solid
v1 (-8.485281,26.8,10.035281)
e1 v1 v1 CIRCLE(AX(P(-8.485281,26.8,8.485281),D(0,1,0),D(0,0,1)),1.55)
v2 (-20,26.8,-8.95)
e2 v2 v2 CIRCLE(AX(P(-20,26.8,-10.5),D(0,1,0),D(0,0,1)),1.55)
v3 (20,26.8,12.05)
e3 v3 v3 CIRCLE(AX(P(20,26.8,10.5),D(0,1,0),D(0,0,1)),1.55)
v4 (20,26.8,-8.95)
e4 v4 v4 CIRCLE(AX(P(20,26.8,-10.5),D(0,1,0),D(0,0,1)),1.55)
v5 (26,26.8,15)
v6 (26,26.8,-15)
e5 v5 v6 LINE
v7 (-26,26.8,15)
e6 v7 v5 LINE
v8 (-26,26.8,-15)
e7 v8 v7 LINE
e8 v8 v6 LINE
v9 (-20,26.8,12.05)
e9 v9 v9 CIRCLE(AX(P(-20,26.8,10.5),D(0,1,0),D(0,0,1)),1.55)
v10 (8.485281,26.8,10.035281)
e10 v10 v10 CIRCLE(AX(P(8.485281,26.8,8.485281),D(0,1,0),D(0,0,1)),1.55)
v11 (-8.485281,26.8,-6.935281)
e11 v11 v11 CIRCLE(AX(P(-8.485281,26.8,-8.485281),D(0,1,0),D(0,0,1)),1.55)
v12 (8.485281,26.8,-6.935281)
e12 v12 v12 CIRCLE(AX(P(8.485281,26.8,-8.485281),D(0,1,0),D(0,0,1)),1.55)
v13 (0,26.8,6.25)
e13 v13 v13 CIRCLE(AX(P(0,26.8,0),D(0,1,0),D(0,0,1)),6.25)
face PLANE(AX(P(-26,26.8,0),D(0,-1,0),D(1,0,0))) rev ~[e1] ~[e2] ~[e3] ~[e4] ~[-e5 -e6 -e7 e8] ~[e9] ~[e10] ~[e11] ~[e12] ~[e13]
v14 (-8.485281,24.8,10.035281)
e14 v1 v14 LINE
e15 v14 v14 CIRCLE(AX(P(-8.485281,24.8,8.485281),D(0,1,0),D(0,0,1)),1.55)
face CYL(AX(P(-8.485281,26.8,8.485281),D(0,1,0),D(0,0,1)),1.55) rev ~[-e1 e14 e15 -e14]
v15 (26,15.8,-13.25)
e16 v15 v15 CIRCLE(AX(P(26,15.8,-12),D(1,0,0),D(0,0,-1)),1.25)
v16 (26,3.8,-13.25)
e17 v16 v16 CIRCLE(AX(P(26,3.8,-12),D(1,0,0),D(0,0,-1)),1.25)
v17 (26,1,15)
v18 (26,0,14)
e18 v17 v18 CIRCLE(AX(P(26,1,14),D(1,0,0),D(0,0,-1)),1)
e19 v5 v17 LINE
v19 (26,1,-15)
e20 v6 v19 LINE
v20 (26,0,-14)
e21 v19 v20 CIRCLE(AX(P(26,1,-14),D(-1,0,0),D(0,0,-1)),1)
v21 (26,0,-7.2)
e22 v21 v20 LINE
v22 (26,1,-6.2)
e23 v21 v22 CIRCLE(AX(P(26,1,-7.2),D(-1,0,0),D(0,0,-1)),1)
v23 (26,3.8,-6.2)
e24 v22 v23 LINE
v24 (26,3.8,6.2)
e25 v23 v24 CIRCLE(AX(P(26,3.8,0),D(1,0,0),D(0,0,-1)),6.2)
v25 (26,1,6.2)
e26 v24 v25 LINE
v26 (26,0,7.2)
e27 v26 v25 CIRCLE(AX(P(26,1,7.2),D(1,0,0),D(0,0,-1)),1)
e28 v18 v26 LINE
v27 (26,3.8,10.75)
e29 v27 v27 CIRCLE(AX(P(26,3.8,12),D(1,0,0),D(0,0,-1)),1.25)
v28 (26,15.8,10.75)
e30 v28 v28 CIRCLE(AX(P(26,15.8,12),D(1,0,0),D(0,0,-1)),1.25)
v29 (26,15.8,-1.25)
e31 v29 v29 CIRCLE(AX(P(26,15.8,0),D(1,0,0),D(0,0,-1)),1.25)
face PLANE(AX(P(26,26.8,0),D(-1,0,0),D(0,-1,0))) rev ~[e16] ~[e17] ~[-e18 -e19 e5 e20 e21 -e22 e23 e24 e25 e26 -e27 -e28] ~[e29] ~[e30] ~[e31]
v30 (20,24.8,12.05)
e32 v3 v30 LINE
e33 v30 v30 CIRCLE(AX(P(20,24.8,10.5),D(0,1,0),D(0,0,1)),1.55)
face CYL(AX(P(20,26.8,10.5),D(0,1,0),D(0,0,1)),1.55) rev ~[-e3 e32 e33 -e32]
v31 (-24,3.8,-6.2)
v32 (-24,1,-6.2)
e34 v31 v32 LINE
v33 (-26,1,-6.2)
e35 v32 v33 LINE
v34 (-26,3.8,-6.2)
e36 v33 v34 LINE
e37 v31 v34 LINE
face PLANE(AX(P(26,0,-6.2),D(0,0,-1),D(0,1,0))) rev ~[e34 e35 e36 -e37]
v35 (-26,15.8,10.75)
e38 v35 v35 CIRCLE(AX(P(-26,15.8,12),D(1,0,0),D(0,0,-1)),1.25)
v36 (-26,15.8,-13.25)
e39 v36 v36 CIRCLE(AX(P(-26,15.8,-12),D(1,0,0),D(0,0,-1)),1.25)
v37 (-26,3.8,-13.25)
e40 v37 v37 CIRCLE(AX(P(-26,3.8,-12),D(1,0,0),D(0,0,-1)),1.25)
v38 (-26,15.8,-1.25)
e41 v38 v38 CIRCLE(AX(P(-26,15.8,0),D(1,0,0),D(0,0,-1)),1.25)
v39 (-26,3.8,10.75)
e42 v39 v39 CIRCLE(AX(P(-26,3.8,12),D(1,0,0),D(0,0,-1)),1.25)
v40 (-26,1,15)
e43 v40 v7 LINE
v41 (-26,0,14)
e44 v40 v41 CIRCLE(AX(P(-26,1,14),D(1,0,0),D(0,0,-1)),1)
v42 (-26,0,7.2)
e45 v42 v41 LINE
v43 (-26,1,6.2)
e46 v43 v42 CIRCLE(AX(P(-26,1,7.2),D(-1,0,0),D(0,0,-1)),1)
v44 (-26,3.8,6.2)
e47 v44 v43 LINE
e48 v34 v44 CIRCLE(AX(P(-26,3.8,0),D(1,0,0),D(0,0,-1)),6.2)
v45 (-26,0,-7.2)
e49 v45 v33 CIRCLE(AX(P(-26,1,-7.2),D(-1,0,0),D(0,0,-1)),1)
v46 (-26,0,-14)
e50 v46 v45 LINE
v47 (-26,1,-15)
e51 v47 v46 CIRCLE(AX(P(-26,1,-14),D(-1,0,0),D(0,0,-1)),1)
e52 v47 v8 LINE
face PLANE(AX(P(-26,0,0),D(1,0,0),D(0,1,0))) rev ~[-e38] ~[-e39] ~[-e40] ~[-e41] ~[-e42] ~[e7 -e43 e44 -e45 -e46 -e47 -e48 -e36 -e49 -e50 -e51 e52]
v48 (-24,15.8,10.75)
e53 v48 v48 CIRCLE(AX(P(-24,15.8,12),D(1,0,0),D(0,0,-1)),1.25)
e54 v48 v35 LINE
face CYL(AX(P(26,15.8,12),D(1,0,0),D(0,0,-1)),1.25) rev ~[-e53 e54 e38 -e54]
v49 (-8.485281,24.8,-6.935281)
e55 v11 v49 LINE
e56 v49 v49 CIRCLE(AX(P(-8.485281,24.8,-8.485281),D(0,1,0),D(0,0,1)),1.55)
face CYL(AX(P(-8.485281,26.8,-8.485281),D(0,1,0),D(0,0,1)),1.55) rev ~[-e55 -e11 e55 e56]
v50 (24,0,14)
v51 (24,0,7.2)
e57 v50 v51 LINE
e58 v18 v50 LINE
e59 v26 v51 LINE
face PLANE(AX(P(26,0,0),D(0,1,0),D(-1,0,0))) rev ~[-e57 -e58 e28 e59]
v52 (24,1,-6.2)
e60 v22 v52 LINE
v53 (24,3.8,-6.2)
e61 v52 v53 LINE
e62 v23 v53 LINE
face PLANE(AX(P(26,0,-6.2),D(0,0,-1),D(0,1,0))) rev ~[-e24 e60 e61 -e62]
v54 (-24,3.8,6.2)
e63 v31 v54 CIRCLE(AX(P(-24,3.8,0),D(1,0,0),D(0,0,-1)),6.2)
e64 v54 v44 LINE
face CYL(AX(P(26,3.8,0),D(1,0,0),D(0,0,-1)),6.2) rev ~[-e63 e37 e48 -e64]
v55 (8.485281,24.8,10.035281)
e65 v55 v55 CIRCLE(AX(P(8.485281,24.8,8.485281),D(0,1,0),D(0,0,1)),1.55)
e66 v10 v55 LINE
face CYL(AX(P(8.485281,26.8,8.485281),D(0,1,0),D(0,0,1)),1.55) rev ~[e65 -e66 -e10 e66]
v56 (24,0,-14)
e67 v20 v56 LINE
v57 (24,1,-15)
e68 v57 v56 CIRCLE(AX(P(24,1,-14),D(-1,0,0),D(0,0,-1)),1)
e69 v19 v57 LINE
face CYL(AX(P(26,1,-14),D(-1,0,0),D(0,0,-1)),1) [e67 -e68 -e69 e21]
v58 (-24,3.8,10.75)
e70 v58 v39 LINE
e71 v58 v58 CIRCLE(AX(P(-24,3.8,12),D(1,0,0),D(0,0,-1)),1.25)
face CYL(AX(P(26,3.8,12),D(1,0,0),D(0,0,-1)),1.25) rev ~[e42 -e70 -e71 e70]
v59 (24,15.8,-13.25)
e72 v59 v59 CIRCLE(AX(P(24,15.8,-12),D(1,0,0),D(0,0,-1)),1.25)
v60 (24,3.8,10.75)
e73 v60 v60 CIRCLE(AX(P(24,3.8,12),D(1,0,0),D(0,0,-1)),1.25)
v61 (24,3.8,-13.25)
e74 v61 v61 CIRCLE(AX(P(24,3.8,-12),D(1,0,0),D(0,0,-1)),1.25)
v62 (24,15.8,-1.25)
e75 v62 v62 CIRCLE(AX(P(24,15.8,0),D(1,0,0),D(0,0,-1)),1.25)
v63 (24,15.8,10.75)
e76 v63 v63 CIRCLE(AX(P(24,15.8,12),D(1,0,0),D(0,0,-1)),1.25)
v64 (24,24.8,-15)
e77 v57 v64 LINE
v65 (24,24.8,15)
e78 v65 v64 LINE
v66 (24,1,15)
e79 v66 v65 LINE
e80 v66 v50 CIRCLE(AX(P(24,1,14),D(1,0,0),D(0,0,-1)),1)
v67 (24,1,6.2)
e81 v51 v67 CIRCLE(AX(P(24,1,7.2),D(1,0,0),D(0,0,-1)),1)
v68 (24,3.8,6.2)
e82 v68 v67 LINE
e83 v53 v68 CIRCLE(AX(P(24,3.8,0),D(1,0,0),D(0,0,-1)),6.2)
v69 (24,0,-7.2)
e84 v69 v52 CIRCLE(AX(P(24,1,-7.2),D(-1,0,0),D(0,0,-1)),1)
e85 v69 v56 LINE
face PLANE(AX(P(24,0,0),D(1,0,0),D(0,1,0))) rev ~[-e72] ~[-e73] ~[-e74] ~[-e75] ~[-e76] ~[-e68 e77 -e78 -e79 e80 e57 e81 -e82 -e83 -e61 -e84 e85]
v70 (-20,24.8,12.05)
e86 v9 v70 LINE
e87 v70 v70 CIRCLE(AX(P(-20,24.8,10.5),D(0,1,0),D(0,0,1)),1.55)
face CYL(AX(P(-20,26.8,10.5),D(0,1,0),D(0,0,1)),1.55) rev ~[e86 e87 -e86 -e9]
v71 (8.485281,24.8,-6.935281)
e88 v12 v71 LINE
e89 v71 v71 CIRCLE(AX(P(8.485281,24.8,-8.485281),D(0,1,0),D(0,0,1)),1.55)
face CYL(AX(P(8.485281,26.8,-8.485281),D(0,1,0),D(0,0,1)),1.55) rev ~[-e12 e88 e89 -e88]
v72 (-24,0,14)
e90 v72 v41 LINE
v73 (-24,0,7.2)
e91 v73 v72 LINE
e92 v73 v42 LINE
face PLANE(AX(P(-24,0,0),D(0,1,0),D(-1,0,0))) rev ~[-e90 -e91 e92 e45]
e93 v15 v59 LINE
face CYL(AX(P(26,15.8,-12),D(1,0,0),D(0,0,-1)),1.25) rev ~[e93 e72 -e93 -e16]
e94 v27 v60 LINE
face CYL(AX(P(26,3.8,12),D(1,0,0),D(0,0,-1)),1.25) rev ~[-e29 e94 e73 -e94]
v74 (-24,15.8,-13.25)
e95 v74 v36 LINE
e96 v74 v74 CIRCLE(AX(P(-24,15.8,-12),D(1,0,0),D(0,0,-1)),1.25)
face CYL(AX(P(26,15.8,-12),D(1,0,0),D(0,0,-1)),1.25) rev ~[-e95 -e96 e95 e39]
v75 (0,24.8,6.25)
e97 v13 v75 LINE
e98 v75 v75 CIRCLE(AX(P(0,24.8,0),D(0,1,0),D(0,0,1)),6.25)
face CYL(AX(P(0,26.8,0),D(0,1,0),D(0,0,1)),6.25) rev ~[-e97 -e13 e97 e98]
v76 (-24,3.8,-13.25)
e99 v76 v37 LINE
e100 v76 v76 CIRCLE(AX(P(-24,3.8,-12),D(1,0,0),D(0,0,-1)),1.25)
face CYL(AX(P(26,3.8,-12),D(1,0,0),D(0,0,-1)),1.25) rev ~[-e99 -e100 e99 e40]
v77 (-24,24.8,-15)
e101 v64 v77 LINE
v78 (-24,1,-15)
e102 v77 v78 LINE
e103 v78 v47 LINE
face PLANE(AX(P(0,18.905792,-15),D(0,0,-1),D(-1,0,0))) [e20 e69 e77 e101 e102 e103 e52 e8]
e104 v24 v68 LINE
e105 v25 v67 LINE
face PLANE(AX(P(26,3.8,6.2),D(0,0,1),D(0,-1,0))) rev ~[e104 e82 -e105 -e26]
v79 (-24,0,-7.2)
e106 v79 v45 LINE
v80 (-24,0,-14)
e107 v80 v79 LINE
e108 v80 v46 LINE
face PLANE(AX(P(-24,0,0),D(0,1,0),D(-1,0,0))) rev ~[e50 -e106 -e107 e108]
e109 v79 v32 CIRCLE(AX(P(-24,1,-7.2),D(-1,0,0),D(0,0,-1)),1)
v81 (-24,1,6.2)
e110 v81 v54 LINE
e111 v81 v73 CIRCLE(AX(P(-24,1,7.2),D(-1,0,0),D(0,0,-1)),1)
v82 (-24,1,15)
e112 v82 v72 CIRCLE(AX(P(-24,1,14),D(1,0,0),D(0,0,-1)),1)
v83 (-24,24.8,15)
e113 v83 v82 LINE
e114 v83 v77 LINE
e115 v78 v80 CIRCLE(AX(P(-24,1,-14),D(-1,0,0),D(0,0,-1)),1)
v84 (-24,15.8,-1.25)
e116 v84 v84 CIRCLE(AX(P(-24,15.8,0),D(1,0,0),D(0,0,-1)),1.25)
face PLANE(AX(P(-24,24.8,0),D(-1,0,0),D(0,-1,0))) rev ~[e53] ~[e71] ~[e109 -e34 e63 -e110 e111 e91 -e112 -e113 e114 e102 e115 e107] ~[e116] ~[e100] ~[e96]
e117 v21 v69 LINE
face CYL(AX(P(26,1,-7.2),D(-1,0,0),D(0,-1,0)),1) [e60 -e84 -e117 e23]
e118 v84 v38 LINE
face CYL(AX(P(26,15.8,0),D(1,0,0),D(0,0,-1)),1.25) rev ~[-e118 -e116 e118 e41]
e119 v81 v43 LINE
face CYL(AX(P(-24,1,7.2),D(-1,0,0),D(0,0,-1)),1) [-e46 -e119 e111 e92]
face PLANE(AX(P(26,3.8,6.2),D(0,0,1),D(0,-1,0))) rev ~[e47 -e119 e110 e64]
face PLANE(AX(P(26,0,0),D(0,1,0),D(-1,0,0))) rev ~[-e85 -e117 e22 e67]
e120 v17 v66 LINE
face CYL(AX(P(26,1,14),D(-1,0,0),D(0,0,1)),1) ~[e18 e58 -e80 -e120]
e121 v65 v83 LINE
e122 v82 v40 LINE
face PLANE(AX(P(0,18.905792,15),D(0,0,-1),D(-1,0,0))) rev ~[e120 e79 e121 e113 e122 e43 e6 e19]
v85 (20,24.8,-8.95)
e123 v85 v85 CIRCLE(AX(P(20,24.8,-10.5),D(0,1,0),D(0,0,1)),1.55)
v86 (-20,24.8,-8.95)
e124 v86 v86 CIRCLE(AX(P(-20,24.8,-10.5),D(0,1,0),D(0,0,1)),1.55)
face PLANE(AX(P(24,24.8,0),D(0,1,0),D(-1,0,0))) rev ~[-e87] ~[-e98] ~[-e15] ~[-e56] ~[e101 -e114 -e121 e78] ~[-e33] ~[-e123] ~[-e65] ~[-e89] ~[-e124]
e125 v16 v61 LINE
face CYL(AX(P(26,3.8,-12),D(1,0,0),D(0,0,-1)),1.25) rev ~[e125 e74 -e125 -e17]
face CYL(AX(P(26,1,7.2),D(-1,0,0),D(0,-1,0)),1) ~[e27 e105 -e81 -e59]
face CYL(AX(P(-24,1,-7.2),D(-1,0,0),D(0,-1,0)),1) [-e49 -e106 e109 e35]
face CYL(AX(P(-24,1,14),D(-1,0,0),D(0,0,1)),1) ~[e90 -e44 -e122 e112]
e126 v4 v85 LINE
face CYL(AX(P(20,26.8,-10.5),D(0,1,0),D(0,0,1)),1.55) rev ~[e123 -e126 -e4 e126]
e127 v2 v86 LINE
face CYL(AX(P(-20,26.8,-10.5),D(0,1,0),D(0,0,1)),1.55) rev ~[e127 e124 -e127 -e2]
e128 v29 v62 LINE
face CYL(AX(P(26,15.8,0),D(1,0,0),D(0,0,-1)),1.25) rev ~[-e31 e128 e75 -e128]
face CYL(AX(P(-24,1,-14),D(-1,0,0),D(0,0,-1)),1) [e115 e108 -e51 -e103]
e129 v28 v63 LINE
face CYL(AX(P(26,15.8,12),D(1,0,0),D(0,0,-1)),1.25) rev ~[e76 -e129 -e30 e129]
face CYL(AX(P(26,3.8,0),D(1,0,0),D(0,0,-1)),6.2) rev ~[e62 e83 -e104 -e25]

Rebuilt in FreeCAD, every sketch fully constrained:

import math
import FreeCAD as App
import Part
import Sketcher
from FreeCAD import Vector


def edges_at(feature, points):
    """Names of the edges that pass closest to the given points."""
    edges = feature.Shape.Edges
    near = lambda p: min(range(len(edges)), key=lambda i: edges[i].distToShape(Part.Vertex(*p))[0])
    return sorted({f"Edge{near(p) + 1}" for p in points})


def add_polygon(sketch, points):
    """Adds a closed chain of lines whose ends are joined by coincident constraints."""
    first, n = sketch.GeometryCount, len(points)
    for a, b in zip(points, points[1:] + points[:1]):
        sketch.addGeometry(Part.LineSegment(App.Vector(*a, 0), App.Vector(*b, 0)), False)
    for i in range(n):
        sketch.addConstraint(Sketcher.Constraint("Coincident", first + i, 2, first + (i + 1) % n, 1))

doc = App.newDocument("Part")
body = doc.addObject("PartDesign::Body", "Body")

sketch1 = body.newObject("Sketcher::SketchObject", "Sketch")
sketch1.AttachmentSupport = (doc.getObject("XY_Plane"), [""])
sketch1.MapMode = "FlatFace"
add_polygon(sketch1, [(26, 26.8), (-26, 26.8), (-26, 0), (-24, 0), (-24, 24.8), (24, 24.8), (24, 0), (26, 0)])
sketch1.addConstraint(Sketcher.Constraint("Horizontal", 0))
sketch1.addConstraint(Sketcher.Constraint("Vertical", 1))
sketch1.addConstraint(Sketcher.Constraint("Horizontal", 2))
sketch1.addConstraint(Sketcher.Constraint("Vertical", 3))
sketch1.addConstraint(Sketcher.Constraint("Horizontal", 4))
sketch1.addConstraint(Sketcher.Constraint("Vertical", 5))
sketch1.addConstraint(Sketcher.Constraint("Horizontal", 6))
sketch1.addConstraint(Sketcher.Constraint("Vertical", 7))
sketch1.addConstraint(Sketcher.Constraint("Symmetric", 2, 2, 5, 2, -1, 1))
sketch1.addConstraint(Sketcher.Constraint("Symmetric", 1, 2, 6, 2, -2))
sketch1.addConstraint(Sketcher.Constraint("DistanceX", 0, 2, 0, 1, 52.0))
sketch1.addConstraint(Sketcher.Constraint("DistanceX", 2, 1, 2, 2, 2.0))
sketch1.addConstraint(Sketcher.Constraint("DistanceY", 1, 2, 1, 1, 26.8))
sketch1.addConstraint(Sketcher.Constraint("DistanceY", 3, 1, 3, 2, 24.8))
pad1 = body.newObject("PartDesign::Pad", "Pad")
pad1.Profile = sketch1
pad1.Length = 30
pad1.Midplane = True

sketch2 = body.newObject("Sketcher::SketchObject", "Sketch001")
sketch2.AttachmentSupport = (doc.getObject("XZ_Plane"), [""])
sketch2.MapMode = "FlatFace"
sketch2.AttachmentOffset = App.Placement(Vector(0, 0, -26.8), App.Rotation())
sketch2.addGeometry(Part.Circle(Vector(0, 0, 0), Vector(0, 0, 1), 6.25), False)
sketch2.addGeometry(Part.Circle(Vector(-8.485281, -8.485281, 0), Vector(0, 0, 1), 1.55), False)
sketch2.addGeometry(Part.Circle(Vector(8.485281, -8.485281, 0), Vector(0, 0, 1), 1.55), False)
sketch2.addGeometry(Part.Circle(Vector(8.485281, 8.485281, 0), Vector(0, 0, 1), 1.55), False)
sketch2.addGeometry(Part.Circle(Vector(-8.485281, 8.485281, 0), Vector(0, 0, 1), 1.55), False)
sketch2.addGeometry(Part.Circle(Vector(20, -10.5, 0), Vector(0, 0, 1), 1.55), False)
sketch2.addGeometry(Part.Circle(Vector(-20, -10.5, 0), Vector(0, 0, 1), 1.55), False)
sketch2.addGeometry(Part.Circle(Vector(20, 10.5, 0), Vector(0, 0, 1), 1.55), False)
sketch2.addGeometry(Part.Circle(Vector(-20, 10.5, 0), Vector(0, 0, 1), 1.55), False)
sketch2.addConstraint(Sketcher.Constraint("Coincident", 0, 3, -1, 1))
sketch2.addConstraint(Sketcher.Constraint("Equal", 1, 2))
sketch2.addConstraint(Sketcher.Constraint("Equal", 2, 3))
sketch2.addConstraint(Sketcher.Constraint("Equal", 3, 4))
sketch2.addConstraint(Sketcher.Constraint("Equal", 4, 5))
sketch2.addConstraint(Sketcher.Constraint("Equal", 5, 6))
sketch2.addConstraint(Sketcher.Constraint("Equal", 6, 7))
sketch2.addConstraint(Sketcher.Constraint("Equal", 7, 8))
sketch2.addConstraint(Sketcher.Constraint("Symmetric", 1, 3, 3, 3, -1, 1))
sketch2.addConstraint(Sketcher.Constraint("Symmetric", 2, 3, 4, 3, -1, 1))
sketch2.addConstraint(Sketcher.Constraint("Symmetric", 6, 3, 7, 3, -1, 1))
sketch2.addConstraint(Sketcher.Constraint("Symmetric", 5, 3, 8, 3, -1, 1))
sketch2.addConstraint(Sketcher.Constraint("Symmetric", 1, 3, 2, 3, -2))
sketch2.addConstraint(Sketcher.Constraint("Symmetric", 5, 3, 6, 3, -2))
sketch2.addConstraint(Sketcher.Constraint("Diameter", 0, 12.5))
sketch2.addConstraint(Sketcher.Constraint("Diameter", 1, 3.1))
sketch2.addConstraint(Sketcher.Constraint("DistanceX", -1, 1, 5, 3, 20.0))
sketch2.addConstraint(Sketcher.Constraint("DistanceY", 5, 3, 7, 3, 21.0))
sketch2.addConstraint(Sketcher.Constraint("DistanceX", 1, 3, -1, 1, 8.485281))
sketch2.addConstraint(Sketcher.Constraint("DistanceY", 1, 3, -1, 1, 8.485281))
pocket1 = body.newObject("PartDesign::Pocket", "Pocket")
pocket1.Profile = sketch2
pocket1.Type = "ThroughAll"
pocket1.Reversed = True

sketch3 = body.newObject("Sketcher::SketchObject", "Sketch002")
sketch3.AttachmentSupport = (doc.getObject("YZ_Plane"), [""])
sketch3.MapMode = "FlatFace"
sketch3.AttachmentOffset = App.Placement(Vector(0, 0, 26), App.Rotation())
sketch3.addGeometry(Part.Circle(Vector(15.8, 12, 0), Vector(0, 0, 1), 1.25), False)
sketch3.addGeometry(Part.Circle(Vector(3.8, 12, 0), Vector(0, 0, 1), 1.25), False)
sketch3.addGeometry(Part.Circle(Vector(15.8, 0, 0), Vector(0, 0, 1), 1.25), False)
sketch3.addGeometry(Part.Circle(Vector(3.8, -12, 0), Vector(0, 0, 1), 1.25), False)
sketch3.addGeometry(Part.Circle(Vector(15.8, -12, 0), Vector(0, 0, 1), 1.25), False)
sketch3.addGeometry(Part.LineSegment(Vector(3.8, 6.2, 0), Vector(0, 6.2, 0)), False)
sketch3.addGeometry(Part.LineSegment(Vector(0, 6.2, 0), Vector(0, -6.2, 0)), False)
sketch3.addGeometry(Part.LineSegment(Vector(0, -6.2, 0), Vector(3.8, -6.2, 0)), False)
sketch3.addGeometry(Part.ArcOfCircle(Part.Circle(Vector(3.8, 0, 0), Vector(0, 0, 1), 6.2), math.radians(-90), math.radians(90)), False)
sketch3.addConstraint(Sketcher.Constraint("Coincident", 5, 2, 6, 1))
sketch3.addConstraint(Sketcher.Constraint("Coincident", 6, 2, 7, 1))
sketch3.addConstraint(Sketcher.Constraint("Tangent", 7, 2, 8, 1))
sketch3.addConstraint(Sketcher.Constraint("Tangent", 8, 2, 5, 1))
sketch3.addConstraint(Sketcher.Constraint("Horizontal", 5))
sketch3.addConstraint(Sketcher.Constraint("Vertical", 6))
sketch3.addConstraint(Sketcher.Constraint("Horizontal", 7))
sketch3.addConstraint(Sketcher.Constraint("Equal", 0, 1))
sketch3.addConstraint(Sketcher.Constraint("Equal", 1, 2))
sketch3.addConstraint(Sketcher.Constraint("Equal", 2, 3))
sketch3.addConstraint(Sketcher.Constraint("Equal", 3, 4))
sketch3.addConstraint(Sketcher.Constraint("Symmetric", 5, 2, 6, 2, -1, 1))
sketch3.addConstraint(Sketcher.Constraint("Symmetric", 1, 3, 3, 3, -1))
sketch3.addConstraint(Sketcher.Constraint("Symmetric", 0, 3, 4, 3, -1))
sketch3.addConstraint(Sketcher.Constraint("PointOnObject", 2, 3, -1))
sketch3.addConstraint(Sketcher.Constraint("Horizontal", 0, 3, 1, 3))
sketch3.addConstraint(Sketcher.Constraint("Vertical", 0, 3, 2, 3))
sketch3.addConstraint(Sketcher.Constraint("Vertical", 3, 3, 8, 3))
sketch3.addConstraint(Sketcher.Constraint("Diameter", 0, 2.5))
sketch3.addConstraint(Sketcher.Constraint("Radius", 8, 6.2))
sketch3.addConstraint(Sketcher.Constraint("DistanceX", 5, 2, 5, 1, 3.8))
sketch3.addConstraint(Sketcher.Constraint("DistanceY", -1, 1, 0, 3, 12.0))
sketch3.addConstraint(Sketcher.Constraint("DistanceX", 1, 3, 0, 3, 12.0))
pocket2 = body.newObject("PartDesign::Pocket", "Pocket001")
pocket2.Profile = sketch3
pocket2.Type = "ThroughAll"
doc.recompute()

fillet = body.newObject("PartDesign::Fillet", "Fillet")
fillet.Base = (pocket2, edges_at(pocket2, [
    (-25, 0, -6.2),
    (25, 0, -6.2),
    (-25, 0, 6.2),
    (25, 0, 6.2),
    (25, 0, 15),
    (-25, 0, 15),
    (-25, 0, -15),
    (25, 0, -15),
]))
fillet.Radius = 1

doc.recompute()
